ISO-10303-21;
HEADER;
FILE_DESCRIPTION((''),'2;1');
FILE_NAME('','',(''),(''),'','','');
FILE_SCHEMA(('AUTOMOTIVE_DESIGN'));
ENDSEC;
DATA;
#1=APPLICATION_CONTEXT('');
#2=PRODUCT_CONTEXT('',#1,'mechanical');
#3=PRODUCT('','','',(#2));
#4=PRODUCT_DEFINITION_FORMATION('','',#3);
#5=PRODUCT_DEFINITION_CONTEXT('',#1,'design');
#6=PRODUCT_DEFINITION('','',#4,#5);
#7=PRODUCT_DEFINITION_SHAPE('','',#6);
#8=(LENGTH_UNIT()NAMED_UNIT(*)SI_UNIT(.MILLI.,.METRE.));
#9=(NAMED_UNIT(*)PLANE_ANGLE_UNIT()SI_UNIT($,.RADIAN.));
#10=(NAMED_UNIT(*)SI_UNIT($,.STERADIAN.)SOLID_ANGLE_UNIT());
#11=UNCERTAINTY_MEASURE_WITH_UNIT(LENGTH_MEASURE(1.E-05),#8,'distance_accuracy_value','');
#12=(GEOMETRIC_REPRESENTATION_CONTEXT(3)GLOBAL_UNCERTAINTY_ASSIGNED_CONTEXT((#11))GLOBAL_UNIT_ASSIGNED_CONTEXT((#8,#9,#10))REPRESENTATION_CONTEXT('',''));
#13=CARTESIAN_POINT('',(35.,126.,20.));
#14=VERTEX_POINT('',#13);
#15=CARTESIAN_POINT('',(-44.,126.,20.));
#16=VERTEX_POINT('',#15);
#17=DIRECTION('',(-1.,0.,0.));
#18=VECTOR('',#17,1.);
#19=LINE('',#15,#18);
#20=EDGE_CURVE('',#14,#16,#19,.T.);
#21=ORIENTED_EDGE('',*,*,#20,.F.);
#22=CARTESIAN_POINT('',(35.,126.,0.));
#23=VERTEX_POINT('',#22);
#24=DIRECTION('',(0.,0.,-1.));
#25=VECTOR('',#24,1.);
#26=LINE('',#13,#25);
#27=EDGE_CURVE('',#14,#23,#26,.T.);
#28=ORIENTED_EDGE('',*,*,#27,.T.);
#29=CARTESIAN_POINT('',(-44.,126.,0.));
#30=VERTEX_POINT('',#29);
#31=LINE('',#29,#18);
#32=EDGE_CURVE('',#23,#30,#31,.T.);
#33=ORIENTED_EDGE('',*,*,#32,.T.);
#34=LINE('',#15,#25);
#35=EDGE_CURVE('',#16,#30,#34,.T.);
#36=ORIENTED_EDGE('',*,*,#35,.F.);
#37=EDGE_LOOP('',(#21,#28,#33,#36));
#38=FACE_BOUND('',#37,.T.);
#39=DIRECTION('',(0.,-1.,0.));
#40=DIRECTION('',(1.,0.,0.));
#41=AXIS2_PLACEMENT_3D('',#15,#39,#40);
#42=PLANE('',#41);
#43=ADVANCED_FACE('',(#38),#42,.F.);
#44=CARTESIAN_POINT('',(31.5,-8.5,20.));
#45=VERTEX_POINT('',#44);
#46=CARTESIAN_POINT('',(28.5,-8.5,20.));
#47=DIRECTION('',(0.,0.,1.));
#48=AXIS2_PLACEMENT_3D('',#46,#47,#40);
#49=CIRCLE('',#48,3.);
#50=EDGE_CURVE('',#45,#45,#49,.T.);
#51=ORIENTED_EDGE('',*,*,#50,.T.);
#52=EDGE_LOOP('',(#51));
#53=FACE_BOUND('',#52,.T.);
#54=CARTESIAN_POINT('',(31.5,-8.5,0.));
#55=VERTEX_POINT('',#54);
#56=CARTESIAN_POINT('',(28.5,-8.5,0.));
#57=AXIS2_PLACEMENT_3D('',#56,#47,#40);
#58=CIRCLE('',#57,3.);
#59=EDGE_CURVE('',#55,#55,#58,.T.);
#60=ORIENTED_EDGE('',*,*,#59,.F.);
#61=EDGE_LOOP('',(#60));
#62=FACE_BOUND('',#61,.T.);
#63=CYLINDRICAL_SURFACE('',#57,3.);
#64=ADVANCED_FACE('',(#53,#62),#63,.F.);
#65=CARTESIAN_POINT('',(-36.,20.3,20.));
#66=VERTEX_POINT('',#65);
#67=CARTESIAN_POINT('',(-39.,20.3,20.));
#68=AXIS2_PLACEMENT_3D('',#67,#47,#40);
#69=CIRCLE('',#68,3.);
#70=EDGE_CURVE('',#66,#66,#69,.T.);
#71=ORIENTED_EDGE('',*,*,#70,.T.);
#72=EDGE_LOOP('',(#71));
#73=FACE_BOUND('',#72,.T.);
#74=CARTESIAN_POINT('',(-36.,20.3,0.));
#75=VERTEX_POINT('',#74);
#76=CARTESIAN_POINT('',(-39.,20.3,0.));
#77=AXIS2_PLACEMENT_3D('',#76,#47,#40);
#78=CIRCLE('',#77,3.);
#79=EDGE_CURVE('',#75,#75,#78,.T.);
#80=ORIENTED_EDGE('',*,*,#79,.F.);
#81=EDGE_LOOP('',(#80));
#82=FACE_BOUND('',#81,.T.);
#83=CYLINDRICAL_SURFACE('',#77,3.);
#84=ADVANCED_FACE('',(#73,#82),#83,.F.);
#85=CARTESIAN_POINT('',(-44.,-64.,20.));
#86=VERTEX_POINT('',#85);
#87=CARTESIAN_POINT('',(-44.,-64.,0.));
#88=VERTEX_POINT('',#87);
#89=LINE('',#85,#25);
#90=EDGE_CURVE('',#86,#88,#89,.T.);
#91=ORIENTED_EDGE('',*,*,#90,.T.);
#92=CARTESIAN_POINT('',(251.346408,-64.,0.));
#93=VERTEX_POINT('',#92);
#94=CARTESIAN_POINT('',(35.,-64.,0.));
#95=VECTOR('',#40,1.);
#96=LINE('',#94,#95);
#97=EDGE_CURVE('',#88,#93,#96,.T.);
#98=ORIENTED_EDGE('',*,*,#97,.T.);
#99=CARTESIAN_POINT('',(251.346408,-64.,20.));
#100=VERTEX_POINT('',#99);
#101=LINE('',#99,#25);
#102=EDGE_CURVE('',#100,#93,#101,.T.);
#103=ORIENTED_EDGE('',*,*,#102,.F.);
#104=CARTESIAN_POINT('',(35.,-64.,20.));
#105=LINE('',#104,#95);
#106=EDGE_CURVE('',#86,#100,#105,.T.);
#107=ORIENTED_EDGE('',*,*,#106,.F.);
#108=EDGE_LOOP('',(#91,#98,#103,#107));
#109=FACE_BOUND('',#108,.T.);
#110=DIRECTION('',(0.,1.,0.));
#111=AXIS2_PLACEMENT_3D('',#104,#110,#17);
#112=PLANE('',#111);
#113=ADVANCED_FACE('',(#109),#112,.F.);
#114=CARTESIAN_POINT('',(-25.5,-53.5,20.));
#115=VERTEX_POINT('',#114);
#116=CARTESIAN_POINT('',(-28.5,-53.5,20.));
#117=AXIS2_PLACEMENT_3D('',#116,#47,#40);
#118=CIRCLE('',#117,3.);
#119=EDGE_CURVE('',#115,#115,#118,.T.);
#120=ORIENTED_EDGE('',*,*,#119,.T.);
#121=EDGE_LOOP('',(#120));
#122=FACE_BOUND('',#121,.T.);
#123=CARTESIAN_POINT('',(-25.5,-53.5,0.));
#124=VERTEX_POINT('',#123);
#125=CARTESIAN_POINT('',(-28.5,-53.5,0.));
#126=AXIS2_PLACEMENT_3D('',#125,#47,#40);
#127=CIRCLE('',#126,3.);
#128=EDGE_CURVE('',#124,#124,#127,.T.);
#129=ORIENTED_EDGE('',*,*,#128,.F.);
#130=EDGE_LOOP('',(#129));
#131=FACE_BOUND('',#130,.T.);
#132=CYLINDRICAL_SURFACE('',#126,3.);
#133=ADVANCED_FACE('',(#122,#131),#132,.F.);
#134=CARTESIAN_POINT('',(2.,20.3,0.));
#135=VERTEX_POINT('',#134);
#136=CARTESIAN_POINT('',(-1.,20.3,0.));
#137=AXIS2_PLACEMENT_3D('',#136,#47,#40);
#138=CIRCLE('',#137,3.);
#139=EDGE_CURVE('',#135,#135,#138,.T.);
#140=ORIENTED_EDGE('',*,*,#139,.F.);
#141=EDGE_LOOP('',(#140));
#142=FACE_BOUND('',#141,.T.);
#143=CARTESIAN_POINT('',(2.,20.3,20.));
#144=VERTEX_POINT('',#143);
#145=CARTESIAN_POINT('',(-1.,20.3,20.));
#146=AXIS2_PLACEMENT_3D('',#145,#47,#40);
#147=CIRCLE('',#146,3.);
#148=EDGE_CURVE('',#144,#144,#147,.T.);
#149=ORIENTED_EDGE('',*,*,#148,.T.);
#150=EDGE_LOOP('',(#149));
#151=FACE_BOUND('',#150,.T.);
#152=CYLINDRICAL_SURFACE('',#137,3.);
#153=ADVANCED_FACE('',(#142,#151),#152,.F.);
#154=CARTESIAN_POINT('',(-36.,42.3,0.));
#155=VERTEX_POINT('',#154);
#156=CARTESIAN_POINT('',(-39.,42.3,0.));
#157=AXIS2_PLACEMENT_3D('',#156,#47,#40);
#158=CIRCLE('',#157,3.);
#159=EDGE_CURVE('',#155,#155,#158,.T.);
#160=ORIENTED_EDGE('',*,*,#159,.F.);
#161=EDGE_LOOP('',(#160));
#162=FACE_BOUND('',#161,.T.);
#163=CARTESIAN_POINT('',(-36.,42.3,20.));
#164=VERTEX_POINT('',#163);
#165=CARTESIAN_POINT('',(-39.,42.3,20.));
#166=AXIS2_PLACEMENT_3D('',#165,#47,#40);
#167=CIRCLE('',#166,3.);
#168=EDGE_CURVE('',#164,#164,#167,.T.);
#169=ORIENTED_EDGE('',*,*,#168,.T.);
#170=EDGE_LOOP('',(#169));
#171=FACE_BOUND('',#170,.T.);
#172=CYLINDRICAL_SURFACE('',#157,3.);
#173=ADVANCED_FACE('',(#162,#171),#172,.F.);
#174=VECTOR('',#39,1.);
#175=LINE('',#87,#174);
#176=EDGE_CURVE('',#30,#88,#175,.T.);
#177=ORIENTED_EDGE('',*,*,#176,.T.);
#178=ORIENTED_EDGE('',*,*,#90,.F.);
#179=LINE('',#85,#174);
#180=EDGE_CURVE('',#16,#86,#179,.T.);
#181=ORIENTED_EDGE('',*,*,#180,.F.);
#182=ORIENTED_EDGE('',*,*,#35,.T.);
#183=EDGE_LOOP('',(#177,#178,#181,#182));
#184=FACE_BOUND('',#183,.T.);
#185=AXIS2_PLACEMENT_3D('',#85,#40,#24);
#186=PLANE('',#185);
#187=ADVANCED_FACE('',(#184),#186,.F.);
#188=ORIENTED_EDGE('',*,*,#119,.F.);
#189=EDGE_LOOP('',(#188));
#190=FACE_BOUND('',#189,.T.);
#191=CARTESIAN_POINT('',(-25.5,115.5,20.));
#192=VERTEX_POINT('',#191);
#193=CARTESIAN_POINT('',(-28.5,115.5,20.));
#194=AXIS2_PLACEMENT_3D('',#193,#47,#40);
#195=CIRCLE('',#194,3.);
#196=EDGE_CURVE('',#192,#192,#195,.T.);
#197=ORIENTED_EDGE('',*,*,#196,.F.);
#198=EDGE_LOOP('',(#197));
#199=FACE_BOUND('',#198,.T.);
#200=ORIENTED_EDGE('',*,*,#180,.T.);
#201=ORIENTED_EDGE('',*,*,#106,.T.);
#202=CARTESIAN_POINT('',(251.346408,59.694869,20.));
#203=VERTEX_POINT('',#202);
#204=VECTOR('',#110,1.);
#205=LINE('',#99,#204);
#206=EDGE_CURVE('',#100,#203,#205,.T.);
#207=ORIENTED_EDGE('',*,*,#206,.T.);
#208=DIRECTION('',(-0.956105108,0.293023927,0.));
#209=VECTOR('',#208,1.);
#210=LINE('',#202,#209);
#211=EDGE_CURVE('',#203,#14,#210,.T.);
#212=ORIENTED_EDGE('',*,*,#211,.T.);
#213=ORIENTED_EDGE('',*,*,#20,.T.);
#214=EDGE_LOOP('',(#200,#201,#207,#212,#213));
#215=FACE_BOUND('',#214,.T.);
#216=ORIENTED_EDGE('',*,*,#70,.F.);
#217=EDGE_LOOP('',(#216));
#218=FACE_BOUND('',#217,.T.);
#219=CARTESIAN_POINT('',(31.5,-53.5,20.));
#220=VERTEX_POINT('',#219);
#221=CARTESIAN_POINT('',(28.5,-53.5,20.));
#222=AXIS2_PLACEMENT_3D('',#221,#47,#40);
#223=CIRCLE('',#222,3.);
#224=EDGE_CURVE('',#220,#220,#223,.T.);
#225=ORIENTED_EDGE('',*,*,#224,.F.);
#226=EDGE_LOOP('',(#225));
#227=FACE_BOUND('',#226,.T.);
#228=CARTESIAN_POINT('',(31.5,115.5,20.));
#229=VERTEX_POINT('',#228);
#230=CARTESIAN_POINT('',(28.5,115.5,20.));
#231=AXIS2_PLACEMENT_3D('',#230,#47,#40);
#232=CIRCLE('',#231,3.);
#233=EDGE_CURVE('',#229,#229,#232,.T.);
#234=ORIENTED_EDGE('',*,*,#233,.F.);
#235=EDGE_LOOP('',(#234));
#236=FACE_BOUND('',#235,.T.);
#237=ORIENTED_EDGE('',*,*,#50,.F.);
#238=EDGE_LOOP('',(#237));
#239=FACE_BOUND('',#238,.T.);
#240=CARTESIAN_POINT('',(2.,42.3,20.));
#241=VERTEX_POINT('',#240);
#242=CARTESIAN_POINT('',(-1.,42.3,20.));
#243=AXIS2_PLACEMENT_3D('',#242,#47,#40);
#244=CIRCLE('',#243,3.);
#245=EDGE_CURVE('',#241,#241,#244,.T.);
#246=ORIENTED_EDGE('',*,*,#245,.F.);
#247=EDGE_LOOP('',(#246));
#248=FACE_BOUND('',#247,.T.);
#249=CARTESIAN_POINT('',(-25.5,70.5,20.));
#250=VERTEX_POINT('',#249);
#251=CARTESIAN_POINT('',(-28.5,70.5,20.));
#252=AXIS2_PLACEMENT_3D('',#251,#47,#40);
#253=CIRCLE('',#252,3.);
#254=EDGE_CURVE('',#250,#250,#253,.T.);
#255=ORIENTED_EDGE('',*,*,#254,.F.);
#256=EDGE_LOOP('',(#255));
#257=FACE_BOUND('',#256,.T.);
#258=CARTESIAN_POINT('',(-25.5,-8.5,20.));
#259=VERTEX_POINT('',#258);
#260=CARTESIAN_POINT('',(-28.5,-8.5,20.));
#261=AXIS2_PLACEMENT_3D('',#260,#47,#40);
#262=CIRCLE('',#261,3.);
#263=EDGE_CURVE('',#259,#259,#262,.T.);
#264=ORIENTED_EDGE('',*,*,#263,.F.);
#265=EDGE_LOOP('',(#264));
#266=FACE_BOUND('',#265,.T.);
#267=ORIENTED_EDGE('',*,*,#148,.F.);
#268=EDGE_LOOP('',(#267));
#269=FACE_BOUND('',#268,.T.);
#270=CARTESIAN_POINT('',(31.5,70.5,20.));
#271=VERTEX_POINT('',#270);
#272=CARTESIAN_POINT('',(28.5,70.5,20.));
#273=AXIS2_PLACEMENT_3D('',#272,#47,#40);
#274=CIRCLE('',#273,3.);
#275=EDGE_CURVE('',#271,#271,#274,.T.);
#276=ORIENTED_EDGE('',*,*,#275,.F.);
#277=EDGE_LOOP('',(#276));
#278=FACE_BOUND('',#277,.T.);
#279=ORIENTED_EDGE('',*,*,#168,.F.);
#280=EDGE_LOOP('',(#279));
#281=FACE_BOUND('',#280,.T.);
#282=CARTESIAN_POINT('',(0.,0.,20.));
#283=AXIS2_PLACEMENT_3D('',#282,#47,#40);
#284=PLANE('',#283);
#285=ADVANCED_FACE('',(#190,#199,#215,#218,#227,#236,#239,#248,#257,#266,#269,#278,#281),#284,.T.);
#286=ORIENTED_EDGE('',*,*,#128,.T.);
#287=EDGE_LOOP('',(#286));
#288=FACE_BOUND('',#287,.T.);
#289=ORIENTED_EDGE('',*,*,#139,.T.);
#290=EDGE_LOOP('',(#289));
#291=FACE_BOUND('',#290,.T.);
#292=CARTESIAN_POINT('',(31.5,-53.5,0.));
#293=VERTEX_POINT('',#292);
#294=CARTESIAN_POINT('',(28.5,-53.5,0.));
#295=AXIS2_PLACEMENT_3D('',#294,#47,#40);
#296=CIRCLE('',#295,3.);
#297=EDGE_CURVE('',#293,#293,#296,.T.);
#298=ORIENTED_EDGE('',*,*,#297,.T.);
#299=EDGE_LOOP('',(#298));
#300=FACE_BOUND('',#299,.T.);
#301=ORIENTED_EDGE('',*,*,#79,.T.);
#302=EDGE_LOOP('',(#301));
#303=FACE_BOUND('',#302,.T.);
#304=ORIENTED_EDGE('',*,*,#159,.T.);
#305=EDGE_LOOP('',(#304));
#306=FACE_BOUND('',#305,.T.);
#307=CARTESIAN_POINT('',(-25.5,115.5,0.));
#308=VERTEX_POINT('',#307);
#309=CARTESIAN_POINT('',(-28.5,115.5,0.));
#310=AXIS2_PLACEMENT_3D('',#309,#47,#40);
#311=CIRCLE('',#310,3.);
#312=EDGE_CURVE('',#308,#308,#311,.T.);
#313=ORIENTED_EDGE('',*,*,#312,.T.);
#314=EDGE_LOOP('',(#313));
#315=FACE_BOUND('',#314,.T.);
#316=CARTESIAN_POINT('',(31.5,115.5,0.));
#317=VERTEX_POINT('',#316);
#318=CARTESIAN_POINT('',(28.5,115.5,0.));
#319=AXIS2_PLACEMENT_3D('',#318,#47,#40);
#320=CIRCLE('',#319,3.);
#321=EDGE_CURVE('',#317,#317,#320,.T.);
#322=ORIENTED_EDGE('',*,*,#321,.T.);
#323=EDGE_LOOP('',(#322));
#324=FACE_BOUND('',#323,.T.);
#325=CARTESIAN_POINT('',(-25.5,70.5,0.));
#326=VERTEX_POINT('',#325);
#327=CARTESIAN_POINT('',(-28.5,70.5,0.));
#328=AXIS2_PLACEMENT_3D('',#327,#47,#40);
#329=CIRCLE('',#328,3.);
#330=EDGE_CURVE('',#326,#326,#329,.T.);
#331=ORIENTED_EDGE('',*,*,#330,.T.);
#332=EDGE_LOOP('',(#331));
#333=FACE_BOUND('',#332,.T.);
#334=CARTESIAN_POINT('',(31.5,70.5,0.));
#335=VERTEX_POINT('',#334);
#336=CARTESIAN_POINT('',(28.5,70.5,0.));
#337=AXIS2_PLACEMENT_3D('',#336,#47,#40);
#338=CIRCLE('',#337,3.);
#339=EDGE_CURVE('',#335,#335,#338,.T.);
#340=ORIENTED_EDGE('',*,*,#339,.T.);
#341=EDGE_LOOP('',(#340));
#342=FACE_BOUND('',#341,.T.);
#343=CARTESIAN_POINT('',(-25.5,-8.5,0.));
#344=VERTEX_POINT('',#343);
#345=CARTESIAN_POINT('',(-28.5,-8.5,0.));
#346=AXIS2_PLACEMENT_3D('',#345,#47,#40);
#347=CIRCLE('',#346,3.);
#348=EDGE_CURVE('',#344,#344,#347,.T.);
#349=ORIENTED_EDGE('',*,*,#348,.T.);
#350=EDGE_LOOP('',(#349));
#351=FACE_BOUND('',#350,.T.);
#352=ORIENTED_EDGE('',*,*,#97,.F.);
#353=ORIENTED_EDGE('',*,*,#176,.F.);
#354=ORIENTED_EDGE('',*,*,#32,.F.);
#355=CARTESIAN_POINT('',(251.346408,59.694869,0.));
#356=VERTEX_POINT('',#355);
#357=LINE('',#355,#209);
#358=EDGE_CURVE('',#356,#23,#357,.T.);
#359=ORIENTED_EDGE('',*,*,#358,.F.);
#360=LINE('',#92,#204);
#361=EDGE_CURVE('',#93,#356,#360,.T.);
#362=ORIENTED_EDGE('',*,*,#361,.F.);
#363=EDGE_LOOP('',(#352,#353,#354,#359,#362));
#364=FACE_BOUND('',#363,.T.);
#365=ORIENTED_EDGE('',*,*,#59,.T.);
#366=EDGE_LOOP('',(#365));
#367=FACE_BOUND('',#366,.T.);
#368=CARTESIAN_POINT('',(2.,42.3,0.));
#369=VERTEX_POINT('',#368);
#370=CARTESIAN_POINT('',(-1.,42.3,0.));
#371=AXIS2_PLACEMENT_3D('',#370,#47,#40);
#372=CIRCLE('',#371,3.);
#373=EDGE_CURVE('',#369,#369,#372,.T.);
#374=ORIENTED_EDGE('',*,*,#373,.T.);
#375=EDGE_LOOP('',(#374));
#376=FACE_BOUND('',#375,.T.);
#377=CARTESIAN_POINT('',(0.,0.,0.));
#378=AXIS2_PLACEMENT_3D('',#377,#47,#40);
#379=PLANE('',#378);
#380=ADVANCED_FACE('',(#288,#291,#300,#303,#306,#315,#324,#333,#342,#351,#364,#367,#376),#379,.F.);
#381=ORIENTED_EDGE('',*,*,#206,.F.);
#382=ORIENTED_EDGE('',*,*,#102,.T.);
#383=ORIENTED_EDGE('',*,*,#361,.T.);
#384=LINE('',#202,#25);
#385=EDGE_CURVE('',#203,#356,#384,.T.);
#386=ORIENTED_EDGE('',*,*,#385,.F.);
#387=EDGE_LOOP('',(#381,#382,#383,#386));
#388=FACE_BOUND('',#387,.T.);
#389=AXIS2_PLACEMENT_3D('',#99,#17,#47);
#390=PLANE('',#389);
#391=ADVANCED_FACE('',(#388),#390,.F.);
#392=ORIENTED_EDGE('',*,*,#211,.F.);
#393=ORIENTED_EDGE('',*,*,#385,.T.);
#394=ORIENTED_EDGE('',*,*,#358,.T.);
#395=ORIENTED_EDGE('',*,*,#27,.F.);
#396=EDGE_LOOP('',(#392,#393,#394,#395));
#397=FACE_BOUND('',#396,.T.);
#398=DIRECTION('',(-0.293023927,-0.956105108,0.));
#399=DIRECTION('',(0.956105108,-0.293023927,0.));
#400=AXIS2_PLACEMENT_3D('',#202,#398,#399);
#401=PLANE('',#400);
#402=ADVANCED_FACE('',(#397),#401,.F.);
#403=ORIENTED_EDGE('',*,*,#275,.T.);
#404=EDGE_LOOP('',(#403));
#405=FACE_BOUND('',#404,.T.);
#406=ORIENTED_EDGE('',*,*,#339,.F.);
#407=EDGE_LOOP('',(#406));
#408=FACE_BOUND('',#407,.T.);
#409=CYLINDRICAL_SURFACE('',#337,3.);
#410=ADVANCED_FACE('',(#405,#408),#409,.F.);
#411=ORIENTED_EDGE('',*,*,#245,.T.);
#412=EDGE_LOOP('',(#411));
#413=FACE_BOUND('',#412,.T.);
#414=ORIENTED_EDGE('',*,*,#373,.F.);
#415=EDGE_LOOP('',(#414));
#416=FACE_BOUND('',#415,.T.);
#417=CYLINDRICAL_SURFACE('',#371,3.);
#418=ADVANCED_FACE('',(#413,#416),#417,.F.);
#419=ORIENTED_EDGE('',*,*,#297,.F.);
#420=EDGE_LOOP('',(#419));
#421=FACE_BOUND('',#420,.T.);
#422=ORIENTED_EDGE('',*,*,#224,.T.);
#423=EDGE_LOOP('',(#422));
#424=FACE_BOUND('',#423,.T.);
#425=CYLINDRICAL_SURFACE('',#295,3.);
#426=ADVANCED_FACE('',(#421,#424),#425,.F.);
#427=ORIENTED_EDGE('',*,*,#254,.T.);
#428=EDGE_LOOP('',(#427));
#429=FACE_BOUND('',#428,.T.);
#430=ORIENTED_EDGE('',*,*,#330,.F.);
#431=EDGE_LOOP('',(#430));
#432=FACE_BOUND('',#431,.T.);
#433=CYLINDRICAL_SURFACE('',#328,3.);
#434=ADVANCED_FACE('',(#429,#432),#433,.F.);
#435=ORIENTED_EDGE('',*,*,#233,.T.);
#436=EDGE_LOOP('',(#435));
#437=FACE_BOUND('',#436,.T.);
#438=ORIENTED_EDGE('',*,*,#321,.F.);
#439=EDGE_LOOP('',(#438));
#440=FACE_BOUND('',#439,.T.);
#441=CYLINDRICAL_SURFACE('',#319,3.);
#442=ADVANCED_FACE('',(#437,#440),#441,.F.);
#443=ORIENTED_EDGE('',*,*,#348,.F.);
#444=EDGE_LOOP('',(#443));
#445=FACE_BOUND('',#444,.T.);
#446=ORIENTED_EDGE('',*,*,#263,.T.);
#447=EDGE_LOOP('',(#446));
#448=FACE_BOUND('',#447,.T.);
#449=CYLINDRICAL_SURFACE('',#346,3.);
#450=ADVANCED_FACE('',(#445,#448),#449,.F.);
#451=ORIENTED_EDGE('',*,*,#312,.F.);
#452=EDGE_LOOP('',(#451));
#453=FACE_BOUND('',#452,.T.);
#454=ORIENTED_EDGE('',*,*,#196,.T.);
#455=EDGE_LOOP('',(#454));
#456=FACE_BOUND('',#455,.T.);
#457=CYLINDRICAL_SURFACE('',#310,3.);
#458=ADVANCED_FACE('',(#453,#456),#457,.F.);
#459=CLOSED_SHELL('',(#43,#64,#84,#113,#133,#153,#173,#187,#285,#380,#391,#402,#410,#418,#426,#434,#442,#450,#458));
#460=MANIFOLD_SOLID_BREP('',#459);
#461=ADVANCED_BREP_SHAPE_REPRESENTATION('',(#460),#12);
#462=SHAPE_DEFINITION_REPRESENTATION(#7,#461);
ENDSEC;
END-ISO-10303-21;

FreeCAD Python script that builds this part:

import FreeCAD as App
import Part
import Sketcher

V = App.Vector
Q = App.Units.Quantity

doc = App.newDocument("Part")
body = doc.addObject("PartDesign::Body", "Body")

sketch1 = body.newObject("Sketcher::SketchObject", "Sketch")
sketch1.AttachmentSupport = (doc.getObject("XY_Plane"), [""])
sketch1.MapMode = "FlatFace"
sketch1.addGeometry(Part.LineSegment(V(-44, -64, 0), V(251.346408, -64, 0)), False)
sketch1.addGeometry(Part.LineSegment(V(251.346408, -64, 0), V(251.346408, 59.694869, 0)), False)
sketch1.addGeometry(Part.LineSegment(V(251.346408, 59.694869, 0), V(35, 126, 0)), False)
sketch1.addGeometry(Part.LineSegment(V(35, 126, 0), V(-44, 126, 0)), False)
sketch1.addGeometry(Part.LineSegment(V(-44, 126, 0), V(-44, -64, 0)), False)
sketch1.addConstraint(Sketcher.Constraint("Coincident", 0, 2, 1, 1))
sketch1.addConstraint(Sketcher.Constraint("Coincident", 1, 2, 2, 1))
sketch1.addConstraint(Sketcher.Constraint("Coincident", 2, 2, 3, 1))
sketch1.addConstraint(Sketcher.Constraint("Coincident", 3, 2, 4, 1))
sketch1.addConstraint(Sketcher.Constraint("Coincident", 4, 2, 0, 1))
sketch1.addConstraint(Sketcher.Constraint("Horizontal", 0))
sketch1.addConstraint(Sketcher.Constraint("Vertical", 1))
sketch1.addConstraint(Sketcher.Constraint("Horizontal", 3))
sketch1.addConstraint(Sketcher.Constraint("Vertical", 4))
sketch1.addConstraint(Sketcher.Constraint("DistanceX", 3, 2, 3, 1, Q("79 mm")))
sketch1.addConstraint(Sketcher.Constraint("DistanceY", 4, 2, 4, 1, Q("190 mm")))
sketch1.addConstraint(Sketcher.Constraint("DistanceY", 0, 2, -1, 1, Q("64 mm")))
sketch1.addConstraint(Sketcher.Constraint("DistanceX", -1, 1, 2, 2, Q("35 mm")))
sketch1.addConstraint(Sketcher.Constraint("DistanceX", 0, 1, 0, 2, Q("295.346408 mm")))
sketch1.addConstraint(Sketcher.Constraint("DistanceY", 1, 1, 1, 2, Q("123.694869 mm")))
pad1 = body.newObject("PartDesign::Pad", "Pad")
pad1.Profile = sketch1
pad1.Length = 20

sketch2 = body.newObject("Sketcher::SketchObject", "Sketch001")
sketch2.AttachmentSupport = (doc.getObject("XY_Plane"), [""])
sketch2.MapMode = "FlatFace"
sketch2.AttachmentOffset = App.Placement(V(0, 0, 20), App.Rotation())
sketch2.addGeometry(Part.Circle(V(28.5, -53.5, 0), V(0, 0, 1), 3), False)
sketch2.addGeometry(Part.Circle(V(-28.5, -53.5, 0), V(0, 0, 1), 3), False)
sketch2.addGeometry(Part.Circle(V(-28.5, -8.5, 0), V(0, 0, 1), 3), False)
sketch2.addGeometry(Part.Circle(V(28.5, -8.5, 0), V(0, 0, 1), 3), False)
sketch2.addGeometry(Part.Circle(V(28.5, 115.5, 0), V(0, 0, 1), 3), False)
sketch2.addGeometry(Part.Circle(V(28.5, 70.5, 0), V(0, 0, 1), 3), False)
sketch2.addGeometry(Part.Circle(V(-28.5, 115.5, 0), V(0, 0, 1), 3), False)
sketch2.addGeometry(Part.Circle(V(-28.5, 70.5, 0), V(0, 0, 1), 3), False)
sketch2.addGeometry(Part.Circle(V(-39, 20.3, 0), V(0, 0, 1), 3), False)
sketch2.addGeometry(Part.Circle(V(-39, 42.3, 0), V(0, 0, 1), 3), False)
sketch2.addGeometry(Part.Circle(V(-1, 20.3, 0), V(0, 0, 1), 3), False)
sketch2.addGeometry(Part.Circle(V(-1, 42.3, 0), V(0, 0, 1), 3), False)
sketch2.addConstraint(Sketcher.Constraint("Equal", 0, 1))
sketch2.addConstraint(Sketcher.Constraint("Equal", 1, 2))
sketch2.addConstraint(Sketcher.Constraint("Equal", 2, 3))
sketch2.addConstraint(Sketcher.Constraint("Equal", 3, 4))
sketch2.addConstraint(Sketcher.Constraint("Equal", 4, 5))
sketch2.addConstraint(Sketcher.Constraint("Equal", 5, 6))
sketch2.addConstraint(Sketcher.Constraint("Equal", 6, 7))
sketch2.addConstraint(Sketcher.Constraint("Equal", 7, 8))
sketch2.addConstraint(Sketcher.Constraint("Equal", 8, 9))
sketch2.addConstraint(Sketcher.Constraint("Equal", 9, 10))
sketch2.addConstraint(Sketcher.Constraint("Equal", 10, 11))
sketch2.addConstraint(Sketcher.Constraint("Symmetric", 0, 3, 1, 3, -2))
sketch2.addConstraint(Sketcher.Constraint("Symmetric", 2, 3, 3, 3, -2))
sketch2.addConstraint(Sketcher.Constraint("Symmetric", 4, 3, 6, 3, -2))
sketch2.addConstraint(Sketcher.Constraint("Symmetric", 5, 3, 7, 3, -2))
sketch2.addConstraint(Sketcher.Constraint("Horizontal", 8, 3, 10, 3))
sketch2.addConstraint(Sketcher.Constraint("Horizontal", 9, 3, 11, 3))
sketch2.addConstraint(Sketcher.Constraint("Vertical", 1, 3, 2, 3))
sketch2.addConstraint(Sketcher.Constraint("Vertical", 3, 3, 4, 3))
sketch2.addConstraint(Sketcher.Constraint("Vertical", 4, 3, 5, 3))
sketch2.addConstraint(Sketcher.Constraint("Vertical", 8, 3, 9, 3))
sketch2.addConstraint(Sketcher.Constraint("Vertical", 10, 3, 11, 3))
sketch2.addConstraint(Sketcher.Constraint("Diameter", 0, Q("6 mm")))
sketch2.addConstraint(Sketcher.Constraint("DistanceX", 8, 3, -1, 1, Q("39 mm")))
sketch2.addConstraint(Sketcher.Constraint("DistanceX", 10, 3, -1, 1, Q("1 mm")))
sketch2.addConstraint(Sketcher.Constraint("DistanceX", 1, 3, 0, 3, Q("57 mm")))
sketch2.addConstraint(Sketcher.Constraint("DistanceY", 1, 3, 2, 3, Q("45 mm")))
sketch2.addConstraint(Sketcher.Constraint("DistanceY", 3, 3, 4, 3, Q("124 mm")))
sketch2.addConstraint(Sketcher.Constraint("DistanceY", 5, 3, 4, 3, Q("45 mm")))
sketch2.addConstraint(Sketcher.Constraint("DistanceY", 8, 3, 9, 3, Q("22 mm")))
sketch2.addConstraint(Sketcher.Constraint("DistanceY", 0, 3, -1, 1, Q("53.5 mm")))
sketch2.addConstraint(Sketcher.Constraint("DistanceY", -1, 1, 8, 3, Q("20.3 mm")))
pocket1 = body.newObject("PartDesign::Pocket", "Pocket")
pocket1.Profile = sketch2
pocket1.Type = "ThroughAll"

doc.recompute()
